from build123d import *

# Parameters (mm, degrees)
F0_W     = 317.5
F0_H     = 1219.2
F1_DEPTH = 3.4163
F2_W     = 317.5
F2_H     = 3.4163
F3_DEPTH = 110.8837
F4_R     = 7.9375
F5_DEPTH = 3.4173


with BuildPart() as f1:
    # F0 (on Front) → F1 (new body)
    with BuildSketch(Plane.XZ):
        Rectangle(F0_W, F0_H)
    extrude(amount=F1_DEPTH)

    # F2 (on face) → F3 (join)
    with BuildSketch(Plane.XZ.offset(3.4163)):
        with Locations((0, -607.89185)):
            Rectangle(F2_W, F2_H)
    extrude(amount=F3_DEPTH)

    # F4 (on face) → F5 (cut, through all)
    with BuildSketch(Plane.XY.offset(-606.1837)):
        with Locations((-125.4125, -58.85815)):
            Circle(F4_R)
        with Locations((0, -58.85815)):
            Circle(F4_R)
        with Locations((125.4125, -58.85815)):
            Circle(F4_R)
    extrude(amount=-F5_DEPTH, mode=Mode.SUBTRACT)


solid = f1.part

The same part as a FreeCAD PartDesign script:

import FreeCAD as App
import Part
import Sketcher

V = App.Vector
Q = App.Units.Quantity


def add_polygon(sketch, points):
    """Adds a closed chain of lines whose ends are joined by coincident constraints."""
    first, n = sketch.GeometryCount, len(points)
    for a, b in zip(points, points[1:] + points[:1]):
        sketch.addGeometry(Part.LineSegment(App.Vector(*a, 0), App.Vector(*b, 0)), False)
    for i in range(n):
        sketch.addConstraint(Sketcher.Constraint("Coincident", first + i, 2, first + (i + 1) % n, 1))

doc = App.newDocument("Part")
body = doc.addObject("PartDesign::Body", "Body")

# Sketch on XZ plane
sketch1 = body.newObject("Sketcher::SketchObject", "Sketch")
sketch1.AttachmentSupport = (doc.getObject("XZ_Plane"), [""])
sketch1.MapMode = "FlatFace"
add_polygon(sketch1, [(-159, 610), (-159, -610), (159, -610), (159, 610)])  # lines 0-3
sketch1.addConstraint([
    Sketcher.Constraint("Vertical", 0),
    Sketcher.Constraint("Horizontal", 1),
    Sketcher.Constraint("Vertical", 2),
    Sketcher.Constraint("Horizontal", 3),
    Sketcher.Constraint("Symmetric", 0, 2, 2, 2, -1, 1),
    Sketcher.Constraint("DistanceY", 0, 2, 0, 1, Q("48 in")),
    Sketcher.Constraint("DistanceX", 1, 1, 1, 2, Q("12.5 in")),
])
pad1 = body.newObject("PartDesign::Pad", "Pad")
pad1.Profile = sketch1
pad1.Length = Q("0.1345 in")

# Sketch on XZ plane
sketch2 = body.newObject("Sketcher::SketchObject", "Sketch001")
sketch2.AttachmentSupport = (doc.getObject("XZ_Plane"), [""])
sketch2.MapMode = "FlatFace"
sketch2.AttachmentOffset = App.Placement(V(0, 0, 0.1345 * 25.4), App.Rotation())
add_polygon(sketch2, [(-158.8, -606.2), (-158.8, -609.6), (158.8, -609.6), (158.8, -606.2)])  # lines 0-3
sketch2.addConstraint([
    Sketcher.Constraint("Vertical", 0),
    Sketcher.Constraint("Horizontal", 1),
    Sketcher.Constraint("Vertical", 2),
    Sketcher.Constraint("Horizontal", 3),
    Sketcher.Constraint("DistanceX", 1, 1, 1, 2, Q("12.5 in")),
    Sketcher.Constraint("DistanceY", 0, 2, -1, 1, Q("24 in")),
    Sketcher.Constraint("DistanceX", 0, 2, -1, 1, Q("6.25 in")),
    Sketcher.Constraint("DistanceY", 0, 2, 0, 1, Q("0.1345 in")),
])
pad2 = body.newObject("PartDesign::Pad", "Pad001")
pad2.Profile = sketch2
pad2.Length = Q("4.3655 in")

# Sketch on XY plane
sketch3 = body.newObject("Sketcher::SketchObject", "Sketch002")
sketch3.AttachmentSupport = (doc.getObject("XY_Plane"), [""])
sketch3.MapMode = "FlatFace"
sketch3.AttachmentOffset = App.Placement(V(0, 0, -23.8655 * 25.4), App.Rotation())
sketch3.addGeometry([
    Part.Circle(V(-125, -59, 0), V(0, 0, 1), 8),
    Part.Circle(V(0, -59, 0), V(0, 0, 1), 8),
    Part.Circle(V(125, -59, 0), V(0, 0, 1), 8),
], False)
sketch3.addConstraint([
    Sketcher.Constraint("Equal", 0, 1),
    Sketcher.Constraint("Equal", 1, 2),
    Sketcher.Constraint("Symmetric", 0, 3, 2, 3, -2),
    Sketcher.Constraint("PointOnObject", 1, 3, -2),
    Sketcher.Constraint("Horizontal", 0, 3, 1, 3),
    Sketcher.Constraint("Diameter", 0, Q("0.625 in")),
    Sketcher.Constraint("DistanceX", 0, 3, -1, 1, Q("4.9375 in")),
    Sketcher.Constraint("DistanceY", 0, 3, -1, 1, 58.85815),
])
pocket1 = body.newObject("PartDesign::Pocket", "Pocket")
pocket1.Profile = sketch3
pocket1.Type = "ThroughAll"

doc.recompute()
